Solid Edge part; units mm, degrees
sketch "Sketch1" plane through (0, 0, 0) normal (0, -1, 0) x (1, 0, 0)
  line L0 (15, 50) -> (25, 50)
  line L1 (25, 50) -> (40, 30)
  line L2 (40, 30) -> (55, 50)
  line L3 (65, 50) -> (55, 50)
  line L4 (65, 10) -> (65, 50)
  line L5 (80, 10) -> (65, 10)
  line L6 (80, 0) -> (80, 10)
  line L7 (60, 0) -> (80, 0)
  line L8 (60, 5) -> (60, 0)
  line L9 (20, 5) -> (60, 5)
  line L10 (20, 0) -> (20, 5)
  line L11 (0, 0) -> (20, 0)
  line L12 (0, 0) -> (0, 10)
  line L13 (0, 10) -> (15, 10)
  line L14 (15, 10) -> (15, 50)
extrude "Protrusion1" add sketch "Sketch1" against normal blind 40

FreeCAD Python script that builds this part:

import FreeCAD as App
import Part
import Sketcher

V = App.Vector
Q = App.Units.Quantity


def add_polygon(sketch, points):
    """Adds a closed chain of lines whose ends are joined by coincident constraints."""
    first, n = sketch.GeometryCount, len(points)
    for a, b in zip(points, points[1:] + points[:1]):
        sketch.addGeometry(Part.LineSegment(App.Vector(*a, 0), App.Vector(*b, 0)), False)
    for i in range(n):
        sketch.addConstraint(Sketcher.Constraint("Coincident", first + i, 2, first + (i + 1) % n, 1))

doc = App.newDocument("Part")
params = doc.addObject("Spreadsheet::Sheet", "Params")
for row, (alias, value) in enumerate([
    ("sketch1_width", "10 mm"),
    ("sketch1_width2", "15 mm"),
    ("sketch1_width3", "20 mm"),
    ("sketch1_width4", "40 mm"),
    ("sketch1_height", "5 mm"),
    ("pad1_length", "40 mm"),
], start=1):
    params.set(f"A{row}", alias)
    params.set(f"B{row}", "=" + value)
    params.setAlias(f"B{row}", alias)

body = doc.addObject("PartDesign::Body", "Body")

# Sketch on XZ plane
sketch1 = body.newObject("Sketcher::SketchObject", "Sketch")
sketch1.AttachmentSupport = (doc.getObject("XZ_Plane"), [""])
sketch1.MapMode = "FlatFace"
add_polygon(sketch1, [(25, 50), (15, 50), (15, 10), (0, 10), (0, 0), (20, 0), (20, 5), (60, 5), (60, 0), (80, 0), (80, 10), (65, 10), (65, 50), (55, 50), (40, 30)])  # lines 0-14
sketch1.addConstraint(Sketcher.Constraint("Horizontal", 0))
sketch1.addConstraint(Sketcher.Constraint("Vertical", 1))
sketch1.addConstraint(Sketcher.Constraint("Horizontal", 2))
sketch1.addConstraint(Sketcher.Constraint("Vertical", 3))
sketch1.addConstraint(Sketcher.Constraint("Horizontal", 4))
sketch1.addConstraint(Sketcher.Constraint("Vertical", 5))
sketch1.addConstraint(Sketcher.Constraint("Horizontal", 6))
sketch1.addConstraint(Sketcher.Constraint("Vertical", 7))
sketch1.addConstraint(Sketcher.Constraint("Horizontal", 8))
sketch1.addConstraint(Sketcher.Constraint("Vertical", 9))
sketch1.addConstraint(Sketcher.Constraint("Horizontal", 10))
sketch1.addConstraint(Sketcher.Constraint("Vertical", 11))
sketch1.addConstraint(Sketcher.Constraint("Horizontal", 12))
sketch1.addConstraint(Sketcher.Constraint("Coincident", 3, 2, -1, 1))
sketch1.addConstraint(Sketcher.Constraint("PointOnObject", 7, 2, -1))
sketch1.addConstraint(Sketcher.Constraint("Horizontal", 2, 2, 9, 2))
sketch1.addConstraint(Sketcher.Constraint("Horizontal", 0, 2, 11, 2))
sketch1.addConstraint(Sketcher.Constraint("Equal", 4, 8))
sketch1.addConstraint(Sketcher.Constraint("Equal", 2, 10))
sketch1.addConstraint(Sketcher.Constraint("Equal", 0, 12))
sketch1.addConstraint(Sketcher.Constraint("Equal", 6, 1))
sketch1.addConstraint(Sketcher.Constraint("Equal", 12, 3))
sketch1.addConstraint(Sketcher.Constraint("Equal", 13, 14))
sketch1.addConstraint(Sketcher.Constraint("DistanceX", 0, 2, 0, 1, Q("10 mm")))
sketch1.addConstraint(Sketcher.Constraint("DistanceX", 2, 2, 2, 1, Q("15 mm")))
sketch1.addConstraint(Sketcher.Constraint("DistanceX", 4, 1, 4, 2, Q("20 mm")))
sketch1.addConstraint(Sketcher.Constraint("DistanceX", 6, 1, 6, 2, Q("40 mm")))
sketch1.addConstraint(Sketcher.Constraint("DistanceY", 5, 1, 5, 2, Q("5 mm")))
sketch1.addConstraint(Sketcher.Constraint("Distance", 13, Q("25 mm")))
sketch1.setExpression("Constraints[38]", "Params.sketch1_width")
sketch1.setExpression("Constraints[39]", "Params.sketch1_width2")
sketch1.setExpression("Constraints[40]", "Params.sketch1_width3")
sketch1.setExpression("Constraints[41]", "Params.sketch1_width4")
sketch1.setExpression("Constraints[42]", "Params.sketch1_height")
pad1 = body.newObject("PartDesign::Pad", "Pad")
pad1.Profile = sketch1
pad1.setExpression("Length", "Params.pad1_length")
pad1.Reversed = True

doc.recompute()
